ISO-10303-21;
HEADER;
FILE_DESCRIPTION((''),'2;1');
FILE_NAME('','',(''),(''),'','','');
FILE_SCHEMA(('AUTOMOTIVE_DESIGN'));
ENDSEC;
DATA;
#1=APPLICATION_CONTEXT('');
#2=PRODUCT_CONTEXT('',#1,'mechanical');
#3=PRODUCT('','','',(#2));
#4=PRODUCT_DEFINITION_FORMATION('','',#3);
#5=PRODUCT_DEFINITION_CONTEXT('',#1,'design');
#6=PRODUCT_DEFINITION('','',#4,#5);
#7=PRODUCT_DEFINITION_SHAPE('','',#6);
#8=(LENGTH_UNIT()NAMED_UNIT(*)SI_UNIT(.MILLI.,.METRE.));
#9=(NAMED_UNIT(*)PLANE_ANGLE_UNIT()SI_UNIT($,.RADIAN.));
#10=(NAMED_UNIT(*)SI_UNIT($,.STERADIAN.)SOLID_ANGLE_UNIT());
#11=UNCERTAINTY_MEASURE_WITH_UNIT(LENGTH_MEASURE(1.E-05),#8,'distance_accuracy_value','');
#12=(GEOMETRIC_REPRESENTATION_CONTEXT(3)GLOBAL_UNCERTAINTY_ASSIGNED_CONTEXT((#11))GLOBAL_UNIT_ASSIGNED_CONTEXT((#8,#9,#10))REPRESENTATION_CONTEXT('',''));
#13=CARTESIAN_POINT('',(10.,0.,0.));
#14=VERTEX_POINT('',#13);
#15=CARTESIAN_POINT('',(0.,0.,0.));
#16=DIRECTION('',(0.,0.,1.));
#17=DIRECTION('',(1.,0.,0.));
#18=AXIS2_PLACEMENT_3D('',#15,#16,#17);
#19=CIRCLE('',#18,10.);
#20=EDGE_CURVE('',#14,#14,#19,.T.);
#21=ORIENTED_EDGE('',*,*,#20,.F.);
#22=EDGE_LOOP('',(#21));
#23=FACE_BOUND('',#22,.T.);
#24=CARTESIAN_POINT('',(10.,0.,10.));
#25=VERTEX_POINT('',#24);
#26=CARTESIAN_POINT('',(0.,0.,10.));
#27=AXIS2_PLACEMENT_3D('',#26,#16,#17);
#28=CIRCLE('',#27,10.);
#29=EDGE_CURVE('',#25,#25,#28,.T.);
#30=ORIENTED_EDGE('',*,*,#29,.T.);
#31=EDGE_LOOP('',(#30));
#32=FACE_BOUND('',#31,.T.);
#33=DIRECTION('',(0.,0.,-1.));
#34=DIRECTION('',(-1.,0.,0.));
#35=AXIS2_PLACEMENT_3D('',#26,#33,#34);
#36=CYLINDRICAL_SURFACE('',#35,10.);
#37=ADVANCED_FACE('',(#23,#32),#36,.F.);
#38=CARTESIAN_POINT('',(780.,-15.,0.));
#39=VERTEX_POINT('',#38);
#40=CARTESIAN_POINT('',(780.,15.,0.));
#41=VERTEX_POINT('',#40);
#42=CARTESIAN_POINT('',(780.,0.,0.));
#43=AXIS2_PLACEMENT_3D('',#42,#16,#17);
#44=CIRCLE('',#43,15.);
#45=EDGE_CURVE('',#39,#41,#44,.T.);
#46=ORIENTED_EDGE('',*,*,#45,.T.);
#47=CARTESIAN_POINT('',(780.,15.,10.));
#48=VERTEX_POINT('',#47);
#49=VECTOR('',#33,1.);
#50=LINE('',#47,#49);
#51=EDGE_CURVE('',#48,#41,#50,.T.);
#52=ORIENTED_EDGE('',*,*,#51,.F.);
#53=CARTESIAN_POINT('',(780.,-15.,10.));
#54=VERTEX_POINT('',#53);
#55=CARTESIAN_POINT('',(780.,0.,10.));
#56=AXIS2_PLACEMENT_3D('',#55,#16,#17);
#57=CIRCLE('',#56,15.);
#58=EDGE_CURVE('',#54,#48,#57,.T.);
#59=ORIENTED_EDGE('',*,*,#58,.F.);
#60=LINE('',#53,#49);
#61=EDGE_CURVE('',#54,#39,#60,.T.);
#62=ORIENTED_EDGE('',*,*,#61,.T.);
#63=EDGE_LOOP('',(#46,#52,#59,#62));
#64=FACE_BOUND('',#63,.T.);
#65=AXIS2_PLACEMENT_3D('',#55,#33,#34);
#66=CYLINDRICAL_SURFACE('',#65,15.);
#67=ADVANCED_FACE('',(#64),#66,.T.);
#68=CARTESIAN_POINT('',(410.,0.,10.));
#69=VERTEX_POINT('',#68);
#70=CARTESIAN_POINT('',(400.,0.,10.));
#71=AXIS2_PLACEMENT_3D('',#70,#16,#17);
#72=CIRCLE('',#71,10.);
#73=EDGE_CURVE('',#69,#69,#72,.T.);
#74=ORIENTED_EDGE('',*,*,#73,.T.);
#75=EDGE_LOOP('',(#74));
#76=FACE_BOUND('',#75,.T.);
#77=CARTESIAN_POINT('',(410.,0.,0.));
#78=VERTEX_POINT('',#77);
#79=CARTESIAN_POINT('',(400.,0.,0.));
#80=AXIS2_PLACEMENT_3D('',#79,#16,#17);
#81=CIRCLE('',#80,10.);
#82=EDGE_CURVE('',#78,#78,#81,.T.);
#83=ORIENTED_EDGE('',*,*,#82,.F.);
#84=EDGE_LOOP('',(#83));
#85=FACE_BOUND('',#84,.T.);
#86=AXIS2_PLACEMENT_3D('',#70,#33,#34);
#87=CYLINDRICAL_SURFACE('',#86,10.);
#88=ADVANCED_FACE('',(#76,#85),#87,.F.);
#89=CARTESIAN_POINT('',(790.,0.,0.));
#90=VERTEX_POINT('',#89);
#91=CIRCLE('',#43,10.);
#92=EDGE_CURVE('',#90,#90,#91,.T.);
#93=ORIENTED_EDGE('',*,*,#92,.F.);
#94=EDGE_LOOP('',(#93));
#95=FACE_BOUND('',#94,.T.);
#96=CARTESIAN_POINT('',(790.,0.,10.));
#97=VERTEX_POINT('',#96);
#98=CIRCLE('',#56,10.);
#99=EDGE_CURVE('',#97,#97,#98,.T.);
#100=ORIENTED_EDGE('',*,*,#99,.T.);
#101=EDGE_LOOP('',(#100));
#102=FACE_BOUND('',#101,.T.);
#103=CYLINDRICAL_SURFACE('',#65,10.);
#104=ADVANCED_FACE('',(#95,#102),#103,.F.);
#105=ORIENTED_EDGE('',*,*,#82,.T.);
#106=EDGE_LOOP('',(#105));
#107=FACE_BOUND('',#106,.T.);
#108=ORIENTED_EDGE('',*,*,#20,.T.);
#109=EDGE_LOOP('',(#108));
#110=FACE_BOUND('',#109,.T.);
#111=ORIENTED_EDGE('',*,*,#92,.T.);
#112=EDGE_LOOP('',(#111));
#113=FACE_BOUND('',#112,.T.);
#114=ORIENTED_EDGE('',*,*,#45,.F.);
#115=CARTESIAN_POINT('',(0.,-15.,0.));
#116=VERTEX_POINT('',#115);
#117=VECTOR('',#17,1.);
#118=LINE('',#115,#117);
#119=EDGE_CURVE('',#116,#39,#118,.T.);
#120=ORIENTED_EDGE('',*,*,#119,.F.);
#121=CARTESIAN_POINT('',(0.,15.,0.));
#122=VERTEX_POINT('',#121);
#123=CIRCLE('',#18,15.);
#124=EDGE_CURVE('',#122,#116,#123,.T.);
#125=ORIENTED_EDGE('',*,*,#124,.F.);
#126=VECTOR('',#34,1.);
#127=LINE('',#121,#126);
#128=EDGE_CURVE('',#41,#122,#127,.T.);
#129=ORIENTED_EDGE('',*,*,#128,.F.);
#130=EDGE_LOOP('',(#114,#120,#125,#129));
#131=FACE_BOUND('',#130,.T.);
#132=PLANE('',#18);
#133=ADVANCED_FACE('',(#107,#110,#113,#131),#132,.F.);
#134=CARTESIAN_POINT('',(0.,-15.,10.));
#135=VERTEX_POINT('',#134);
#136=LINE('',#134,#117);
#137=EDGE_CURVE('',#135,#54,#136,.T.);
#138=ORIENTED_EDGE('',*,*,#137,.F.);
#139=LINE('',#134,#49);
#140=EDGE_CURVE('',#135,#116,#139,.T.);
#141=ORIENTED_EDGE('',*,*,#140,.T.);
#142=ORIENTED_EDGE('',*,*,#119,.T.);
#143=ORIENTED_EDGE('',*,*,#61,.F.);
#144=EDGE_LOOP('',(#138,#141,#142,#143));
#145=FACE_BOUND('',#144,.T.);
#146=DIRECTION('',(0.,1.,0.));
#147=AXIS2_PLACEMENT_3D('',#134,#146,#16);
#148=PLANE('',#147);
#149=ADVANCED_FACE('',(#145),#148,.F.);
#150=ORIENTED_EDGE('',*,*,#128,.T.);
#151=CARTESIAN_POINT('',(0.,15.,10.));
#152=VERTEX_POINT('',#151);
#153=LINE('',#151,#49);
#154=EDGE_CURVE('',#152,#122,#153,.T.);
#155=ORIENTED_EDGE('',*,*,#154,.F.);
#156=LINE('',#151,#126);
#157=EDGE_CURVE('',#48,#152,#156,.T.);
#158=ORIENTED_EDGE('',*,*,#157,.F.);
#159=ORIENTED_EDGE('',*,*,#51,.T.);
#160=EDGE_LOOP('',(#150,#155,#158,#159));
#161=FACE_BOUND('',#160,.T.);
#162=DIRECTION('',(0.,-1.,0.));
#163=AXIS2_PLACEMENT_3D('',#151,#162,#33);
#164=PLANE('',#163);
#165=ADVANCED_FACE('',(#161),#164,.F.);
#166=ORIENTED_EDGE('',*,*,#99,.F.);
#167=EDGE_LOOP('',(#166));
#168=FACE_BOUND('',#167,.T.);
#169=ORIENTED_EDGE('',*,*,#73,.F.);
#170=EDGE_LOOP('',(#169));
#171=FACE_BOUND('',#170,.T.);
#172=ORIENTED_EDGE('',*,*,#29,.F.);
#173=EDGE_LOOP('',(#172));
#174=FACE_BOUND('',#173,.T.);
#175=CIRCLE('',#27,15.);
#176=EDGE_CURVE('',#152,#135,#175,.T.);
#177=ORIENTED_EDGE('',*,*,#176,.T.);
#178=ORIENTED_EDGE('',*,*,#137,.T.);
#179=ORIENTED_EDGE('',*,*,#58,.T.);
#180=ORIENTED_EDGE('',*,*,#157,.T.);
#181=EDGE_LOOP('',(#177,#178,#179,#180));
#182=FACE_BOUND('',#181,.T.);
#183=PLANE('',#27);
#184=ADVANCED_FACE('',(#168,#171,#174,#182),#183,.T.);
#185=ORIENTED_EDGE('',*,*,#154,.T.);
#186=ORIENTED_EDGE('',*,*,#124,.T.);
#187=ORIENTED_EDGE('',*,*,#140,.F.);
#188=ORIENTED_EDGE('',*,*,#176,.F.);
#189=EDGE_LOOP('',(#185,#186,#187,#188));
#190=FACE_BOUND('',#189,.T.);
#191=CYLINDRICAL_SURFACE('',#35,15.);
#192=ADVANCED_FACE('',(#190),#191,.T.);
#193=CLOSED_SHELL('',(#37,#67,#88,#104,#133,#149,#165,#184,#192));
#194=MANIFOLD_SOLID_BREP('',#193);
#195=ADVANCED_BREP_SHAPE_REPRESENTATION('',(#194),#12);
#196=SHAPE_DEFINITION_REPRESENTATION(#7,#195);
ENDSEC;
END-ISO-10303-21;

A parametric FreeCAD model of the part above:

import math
import FreeCAD as App
import Part
import Sketcher

doc = App.newDocument("Part")
body = doc.addObject("PartDesign::Body", "Body")

# Sketch on XY plane
sketch1 = body.newObject("Sketcher::SketchObject", "Sketch")
sketch1.AttachmentSupport = (doc.getObject("XY_Plane"), [""])
sketch1.MapMode = "FlatFace"
sketch1.addGeometry(Part.LineSegment(App.Vector(780, 15, 0), App.Vector(0, 15, 0)), False)
sketch1.addGeometry(Part.ArcOfCircle(Part.Circle(App.Vector(0, 0, 0), App.Vector(0, 0, 1), 15), math.radians(90), math.radians(270)), False)
sketch1.addGeometry(Part.LineSegment(App.Vector(0, -15, 0), App.Vector(780, -15, 0)), False)
sketch1.addGeometry(Part.ArcOfCircle(Part.Circle(App.Vector(780, 0, 0), App.Vector(0, 0, 1), 15), math.radians(-90), math.radians(90)), False)
sketch1.addGeometry(Part.Circle(App.Vector(780, 0, 0), App.Vector(0, 0, 1), 10), False)
sketch1.addGeometry(Part.Circle(App.Vector(400, 0, 0), App.Vector(0, 0, 1), 10), False)
sketch1.addGeometry(Part.Circle(App.Vector(0, 0, 0), App.Vector(0, 0, 1), 10), False)
sketch1.addConstraint(Sketcher.Constraint("Tangent", 0, 2, 1, 1))
sketch1.addConstraint(Sketcher.Constraint("Tangent", 1, 2, 2, 1))
sketch1.addConstraint(Sketcher.Constraint("Tangent", 2, 2, 3, 1))
sketch1.addConstraint(Sketcher.Constraint("Tangent", 3, 2, 0, 1))
sketch1.addConstraint(Sketcher.Constraint("Horizontal", 0))
sketch1.addConstraint(Sketcher.Constraint("Horizontal", 2))
sketch1.addConstraint(Sketcher.Constraint("Coincident", 1, 3, -1, 1))
sketch1.addConstraint(Sketcher.Constraint("Coincident", 6, 3, -1, 1))
sketch1.addConstraint(Sketcher.Constraint("Coincident", 4, 3, 3, 3))
sketch1.addConstraint(Sketcher.Constraint("Equal", 4, 5))
sketch1.addConstraint(Sketcher.Constraint("Equal", 5, 6))
sketch1.addConstraint(Sketcher.Constraint("PointOnObject", 5, 3, -1))
sketch1.addConstraint(Sketcher.Constraint("Diameter", 4, 20.0))
sketch1.addConstraint(Sketcher.Constraint("Radius", 1, 15.0))
sketch1.addConstraint(Sketcher.Constraint("DistanceX", 0, 2, 0, 1, 780.0))
sketch1.addConstraint(Sketcher.Constraint("DistanceX", -1, 1, 5, 3, 400.0))
pad1 = body.newObject("PartDesign::Pad", "Pad")
pad1.Profile = sketch1
pad1.Length = 10

doc.recompute()
